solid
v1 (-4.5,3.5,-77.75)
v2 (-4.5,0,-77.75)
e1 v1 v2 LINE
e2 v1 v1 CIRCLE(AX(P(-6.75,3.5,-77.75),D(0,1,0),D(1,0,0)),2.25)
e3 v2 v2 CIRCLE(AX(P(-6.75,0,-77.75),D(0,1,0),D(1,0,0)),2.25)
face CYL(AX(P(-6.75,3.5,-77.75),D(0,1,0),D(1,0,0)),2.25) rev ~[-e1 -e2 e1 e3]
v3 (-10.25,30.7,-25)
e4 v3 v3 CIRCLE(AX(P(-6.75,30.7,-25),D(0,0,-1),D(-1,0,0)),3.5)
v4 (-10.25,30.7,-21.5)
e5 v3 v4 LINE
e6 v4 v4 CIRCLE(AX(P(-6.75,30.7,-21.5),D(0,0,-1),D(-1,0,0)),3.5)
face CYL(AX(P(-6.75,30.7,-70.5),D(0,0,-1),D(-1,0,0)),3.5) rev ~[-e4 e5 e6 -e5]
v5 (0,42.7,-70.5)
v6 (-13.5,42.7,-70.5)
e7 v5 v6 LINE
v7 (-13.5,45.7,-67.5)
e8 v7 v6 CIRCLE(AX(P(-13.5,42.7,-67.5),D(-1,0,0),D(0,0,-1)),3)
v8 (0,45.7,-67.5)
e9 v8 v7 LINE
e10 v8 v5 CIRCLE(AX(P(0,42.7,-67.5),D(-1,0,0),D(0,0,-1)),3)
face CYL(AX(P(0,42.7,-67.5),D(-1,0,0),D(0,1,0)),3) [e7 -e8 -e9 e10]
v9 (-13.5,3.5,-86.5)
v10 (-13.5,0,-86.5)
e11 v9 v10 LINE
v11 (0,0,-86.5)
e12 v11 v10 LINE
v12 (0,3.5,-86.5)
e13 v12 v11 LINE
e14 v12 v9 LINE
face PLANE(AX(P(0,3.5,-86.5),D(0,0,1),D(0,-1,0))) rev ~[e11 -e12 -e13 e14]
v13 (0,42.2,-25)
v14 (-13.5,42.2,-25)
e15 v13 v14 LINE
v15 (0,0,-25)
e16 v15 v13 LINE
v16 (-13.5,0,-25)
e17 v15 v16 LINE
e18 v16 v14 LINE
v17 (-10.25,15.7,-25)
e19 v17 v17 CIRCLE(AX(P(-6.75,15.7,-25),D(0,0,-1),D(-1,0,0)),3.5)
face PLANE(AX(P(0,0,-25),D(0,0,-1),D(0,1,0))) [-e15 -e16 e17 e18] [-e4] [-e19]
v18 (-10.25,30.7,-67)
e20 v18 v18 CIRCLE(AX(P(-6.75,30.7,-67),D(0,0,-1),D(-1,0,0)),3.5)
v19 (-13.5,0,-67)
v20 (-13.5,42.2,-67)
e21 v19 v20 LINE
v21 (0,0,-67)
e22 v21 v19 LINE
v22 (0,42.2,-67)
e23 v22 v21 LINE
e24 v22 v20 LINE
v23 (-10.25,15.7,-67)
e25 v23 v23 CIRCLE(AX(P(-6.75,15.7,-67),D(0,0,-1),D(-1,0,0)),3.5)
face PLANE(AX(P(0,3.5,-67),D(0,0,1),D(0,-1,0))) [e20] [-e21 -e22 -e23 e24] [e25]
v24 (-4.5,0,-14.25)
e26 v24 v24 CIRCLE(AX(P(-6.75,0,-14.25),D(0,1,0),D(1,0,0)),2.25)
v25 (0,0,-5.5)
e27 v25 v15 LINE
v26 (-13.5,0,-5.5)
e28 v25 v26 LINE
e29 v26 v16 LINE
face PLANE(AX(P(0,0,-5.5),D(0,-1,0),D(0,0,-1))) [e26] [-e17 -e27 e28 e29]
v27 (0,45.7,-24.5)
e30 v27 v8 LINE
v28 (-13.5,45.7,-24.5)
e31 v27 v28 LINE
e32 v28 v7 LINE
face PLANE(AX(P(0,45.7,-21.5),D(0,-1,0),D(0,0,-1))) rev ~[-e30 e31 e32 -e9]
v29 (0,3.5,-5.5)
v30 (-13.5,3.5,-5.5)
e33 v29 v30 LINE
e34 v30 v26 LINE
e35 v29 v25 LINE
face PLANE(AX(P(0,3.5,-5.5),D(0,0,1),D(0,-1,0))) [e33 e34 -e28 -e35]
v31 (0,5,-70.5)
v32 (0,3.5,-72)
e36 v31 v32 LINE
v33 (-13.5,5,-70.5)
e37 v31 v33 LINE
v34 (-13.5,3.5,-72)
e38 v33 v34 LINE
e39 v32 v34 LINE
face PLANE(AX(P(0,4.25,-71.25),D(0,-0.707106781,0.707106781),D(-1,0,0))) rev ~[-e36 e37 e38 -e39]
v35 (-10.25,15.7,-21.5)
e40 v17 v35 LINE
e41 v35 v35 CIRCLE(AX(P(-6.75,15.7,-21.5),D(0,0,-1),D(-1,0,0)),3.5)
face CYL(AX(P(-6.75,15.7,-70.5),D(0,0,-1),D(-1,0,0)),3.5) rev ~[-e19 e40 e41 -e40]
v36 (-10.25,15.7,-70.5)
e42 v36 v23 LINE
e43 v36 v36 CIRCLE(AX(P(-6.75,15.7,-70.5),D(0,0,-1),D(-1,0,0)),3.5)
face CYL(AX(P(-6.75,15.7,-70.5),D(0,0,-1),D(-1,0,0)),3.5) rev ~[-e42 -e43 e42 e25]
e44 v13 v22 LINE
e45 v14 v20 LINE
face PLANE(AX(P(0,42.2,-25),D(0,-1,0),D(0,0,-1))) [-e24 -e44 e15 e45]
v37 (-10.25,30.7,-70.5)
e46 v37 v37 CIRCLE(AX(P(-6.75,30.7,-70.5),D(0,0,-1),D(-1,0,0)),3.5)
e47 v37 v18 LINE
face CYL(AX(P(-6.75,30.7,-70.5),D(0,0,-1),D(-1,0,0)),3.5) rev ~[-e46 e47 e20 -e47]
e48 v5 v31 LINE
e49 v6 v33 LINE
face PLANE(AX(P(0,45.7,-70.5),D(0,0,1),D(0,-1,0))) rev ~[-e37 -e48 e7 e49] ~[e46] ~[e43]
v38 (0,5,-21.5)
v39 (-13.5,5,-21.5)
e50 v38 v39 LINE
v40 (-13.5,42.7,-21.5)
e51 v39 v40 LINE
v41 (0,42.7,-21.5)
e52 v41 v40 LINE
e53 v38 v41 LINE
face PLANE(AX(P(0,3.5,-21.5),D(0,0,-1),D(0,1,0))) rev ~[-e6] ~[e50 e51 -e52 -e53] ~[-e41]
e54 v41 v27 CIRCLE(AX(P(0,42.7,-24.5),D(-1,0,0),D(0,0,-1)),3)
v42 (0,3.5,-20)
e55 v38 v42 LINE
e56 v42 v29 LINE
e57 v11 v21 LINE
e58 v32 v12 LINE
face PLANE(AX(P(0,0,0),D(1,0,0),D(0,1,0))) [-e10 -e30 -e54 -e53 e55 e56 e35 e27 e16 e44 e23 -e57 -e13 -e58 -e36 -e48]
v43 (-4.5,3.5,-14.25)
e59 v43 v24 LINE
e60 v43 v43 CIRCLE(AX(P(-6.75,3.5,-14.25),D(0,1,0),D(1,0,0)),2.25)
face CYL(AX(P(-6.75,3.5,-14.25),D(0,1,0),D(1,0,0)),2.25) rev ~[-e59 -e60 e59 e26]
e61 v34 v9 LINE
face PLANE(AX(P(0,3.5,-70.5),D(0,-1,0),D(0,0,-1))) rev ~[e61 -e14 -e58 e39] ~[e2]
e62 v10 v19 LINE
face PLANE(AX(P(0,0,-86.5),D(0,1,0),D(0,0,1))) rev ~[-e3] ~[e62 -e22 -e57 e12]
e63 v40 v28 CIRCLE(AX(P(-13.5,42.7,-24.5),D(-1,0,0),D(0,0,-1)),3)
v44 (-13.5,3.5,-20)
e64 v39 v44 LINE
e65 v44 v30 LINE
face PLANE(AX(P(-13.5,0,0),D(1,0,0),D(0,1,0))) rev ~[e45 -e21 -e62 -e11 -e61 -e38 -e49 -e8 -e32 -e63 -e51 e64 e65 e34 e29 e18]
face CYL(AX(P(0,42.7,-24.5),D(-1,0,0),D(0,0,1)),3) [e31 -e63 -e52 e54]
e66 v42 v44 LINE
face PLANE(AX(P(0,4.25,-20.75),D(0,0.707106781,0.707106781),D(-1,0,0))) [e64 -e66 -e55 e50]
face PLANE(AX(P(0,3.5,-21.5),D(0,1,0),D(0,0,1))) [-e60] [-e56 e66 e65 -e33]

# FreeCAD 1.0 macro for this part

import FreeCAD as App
import Part
import Sketcher
from FreeCAD import Vector


def edges_at(feature, points):
    """Names of the edges that pass closest to the given points."""
    edges = feature.Shape.Edges
    near = lambda p: min(range(len(edges)), key=lambda i: edges[i].distToShape(Part.Vertex(*p))[0])
    return sorted({f"Edge{near(p) + 1}" for p in points})

doc = App.newDocument("Part")
body = doc.addObject("PartDesign::Body", "Body")

# Sketch on YZ plane
sketch1 = body.newObject("Sketcher::SketchObject", "Sketch")
sketch1.AttachmentSupport = (doc.getObject("YZ_Plane"), [""])
sketch1.MapMode = "FlatFace"
sketch1.addGeometry([
    Part.LineSegment(Vector(0, -5.5, 0), Vector(0, -25, 0)),  # 0
    Part.LineSegment(Vector(0, -25, 0), Vector(42.2, -25, 0)),  # 1
    Part.LineSegment(Vector(42.2, -25, 0), Vector(42.2, -67, 0)),  # 2
    Part.LineSegment(Vector(42.2, -67, 0), Vector(0, -67, 0)),  # 3
    Part.LineSegment(Vector(0, -67, 0), Vector(0, -86.5, 0)),  # 4
    Part.LineSegment(Vector(0, -86.5, 0), Vector(3.5, -86.5, 0)),  # 5
    Part.LineSegment(Vector(3.5, -86.5, 0), Vector(3.5, -70.5, 0)),  # 6
    Part.LineSegment(Vector(3.5, -70.5, 0), Vector(45.7, -70.5, 0)),  # 7
    Part.LineSegment(Vector(45.7, -70.5, 0), Vector(45.7, -21.5, 0)),  # 8
    Part.LineSegment(Vector(45.7, -21.5, 0), Vector(3.5, -21.5, 0)),  # 9
    Part.LineSegment(Vector(3.5, -21.5, 0), Vector(3.5, -5.5, 0)),  # 10
    Part.LineSegment(Vector(3.5, -5.5, 0), Vector(0, -5.5, 0)),  # 11
], False)
sketch1.addConstraint([
    Sketcher.Constraint("Coincident", 0, 2, 1, 1),
    Sketcher.Constraint("Coincident", 1, 2, 2, 1),
    Sketcher.Constraint("Coincident", 2, 2, 3, 1),
    Sketcher.Constraint("Coincident", 3, 2, 4, 1),
    Sketcher.Constraint("Coincident", 4, 2, 5, 1),
    Sketcher.Constraint("Coincident", 5, 2, 6, 1),
    Sketcher.Constraint("Coincident", 6, 2, 7, 1),
    Sketcher.Constraint("Coincident", 7, 2, 8, 1),
    Sketcher.Constraint("Coincident", 8, 2, 9, 1),
    Sketcher.Constraint("Coincident", 9, 2, 10, 1),
    Sketcher.Constraint("Coincident", 10, 2, 11, 1),
    Sketcher.Constraint("Coincident", 11, 2, 0, 1),
    Sketcher.Constraint("Vertical", 0),
    Sketcher.Constraint("Horizontal", 1),
    Sketcher.Constraint("Vertical", 2),
    Sketcher.Constraint("Horizontal", 3),
    Sketcher.Constraint("Vertical", 4),
    Sketcher.Constraint("Horizontal", 5),
    Sketcher.Constraint("Vertical", 6),
    Sketcher.Constraint("Horizontal", 7),
    Sketcher.Constraint("Vertical", 8),
    Sketcher.Constraint("Horizontal", 9),
    Sketcher.Constraint("Vertical", 10),
    Sketcher.Constraint("Horizontal", 11),
    Sketcher.Constraint("PointOnObject", 0, 2, -2),
    Sketcher.Constraint("PointOnObject", 3, 2, -2),
    Sketcher.Constraint("Vertical", 6, 2, 9, 2),
    Sketcher.Constraint("Equal", 3, 7),
    Sketcher.Constraint("Equal", 0, 4),
    Sketcher.Constraint("Equal", 6, 10),
    Sketcher.Constraint("DistanceY", 2, 2, 2, 1, 42.0),
    Sketcher.Constraint("DistanceY", 6, 1, 6, 2, 16.0),
    Sketcher.Constraint("DistanceX", 1, 1, 1, 2, 42.2),
    Sketcher.Constraint("DistanceX", 5, 1, 5, 2, 3.5),
    Sketcher.Constraint("DistanceY", 6, 2, 3, 2, 3.5),
    Sketcher.Constraint("DistanceY", 0, 2, -1, 1, 25.0),
])
pad1 = body.newObject("PartDesign::Pad", "Pad")
pad1.Profile = sketch1
pad1.Length = 13.5
pad1.Reversed = True

# Sketch on XZ plane
sketch2 = body.newObject("Sketcher::SketchObject", "Sketch001")
sketch2.AttachmentSupport = (doc.getObject("XZ_Plane"), [""])
sketch2.MapMode = "FlatFace"
sketch2.AttachmentOffset = App.Placement(Vector(0, 0, -3.5), App.Rotation())
sketch2.addGeometry([
    Part.Circle(Vector(-6.8, -14.2, 0), Vector(0, 0, 1), 2.2),
    Part.Circle(Vector(-6.8, -77.8, 0), Vector(0, 0, 1), 2.2),
], False)
sketch2.addConstraint([
    Sketcher.Constraint("Equal", 0, 1),
    Sketcher.Constraint("Vertical", 0, 3, 1, 3),
    Sketcher.Constraint("Diameter", 0, 4.5),
    Sketcher.Constraint("DistanceX", 0, 3, -1, 1, 6.75),
    Sketcher.Constraint("DistanceY", 1, 3, 0, 3, 63.5),
    Sketcher.Constraint("DistanceY", 0, 3, -1, 1, 14.25),
])
pocket1 = body.newObject("PartDesign::Pocket", "Pocket")
pocket1.Profile = sketch2
pocket1.Type = "ThroughAll"
pocket1.Reversed = True
doc.recompute()

fillet = body.newObject("PartDesign::Fillet", "Fillet")
fillet.Base = (pocket1, edges_at(pocket1, [(-6.75, 45.7, -21.5), (-6.75, 45.7, -70.5)]))
fillet.Radius = 3
doc.recompute()

chamfer = body.newObject("PartDesign::Chamfer", "Chamfer")
chamfer.Base = (fillet, edges_at(fillet, [(-6.75, 3.5, -21.5), (-6.75, 3.5, -70.5)]))
chamfer.Size = 1.5

# Sketch on XY plane
sketch3 = body.newObject("Sketcher::SketchObject", "Sketch002")
sketch3.AttachmentSupport = (doc.getObject("XY_Plane"), [""])
sketch3.MapMode = "FlatFace"
sketch3.AttachmentOffset = App.Placement(Vector(0, 0, -70.5), App.Rotation())
sketch3.addGeometry(Part.Circle(Vector(-6.8, 30.7, 0), Vector(0, 0, 1), 3.5), False)
sketch3.addConstraint([
    Sketcher.Constraint("Diameter", 0, 7.0),
    Sketcher.Constraint("DistanceX", 0, 3, -1, 1, 6.75),
    Sketcher.Constraint("DistanceY", -1, 1, 0, 3, 30.7),
])
pocket2 = body.newObject("PartDesign::Pocket", "Pocket001")
pocket2.Profile = sketch3
pocket2.Type = "ThroughAll"
pocket2.Reversed = True
doc.recompute()

linearpattern = body.newObject("PartDesign::LinearPattern", "LinearPattern")
linearpattern.Originals = [pocket2]
linearpattern.Direction = (doc.getObject("Y_Axis"), [""])
linearpattern.Mode = "offset"
linearpattern.Offset = 15
linearpattern.Occurrences = 2
linearpattern.Reversed = True
body.Tip = linearpattern

doc.recompute()
